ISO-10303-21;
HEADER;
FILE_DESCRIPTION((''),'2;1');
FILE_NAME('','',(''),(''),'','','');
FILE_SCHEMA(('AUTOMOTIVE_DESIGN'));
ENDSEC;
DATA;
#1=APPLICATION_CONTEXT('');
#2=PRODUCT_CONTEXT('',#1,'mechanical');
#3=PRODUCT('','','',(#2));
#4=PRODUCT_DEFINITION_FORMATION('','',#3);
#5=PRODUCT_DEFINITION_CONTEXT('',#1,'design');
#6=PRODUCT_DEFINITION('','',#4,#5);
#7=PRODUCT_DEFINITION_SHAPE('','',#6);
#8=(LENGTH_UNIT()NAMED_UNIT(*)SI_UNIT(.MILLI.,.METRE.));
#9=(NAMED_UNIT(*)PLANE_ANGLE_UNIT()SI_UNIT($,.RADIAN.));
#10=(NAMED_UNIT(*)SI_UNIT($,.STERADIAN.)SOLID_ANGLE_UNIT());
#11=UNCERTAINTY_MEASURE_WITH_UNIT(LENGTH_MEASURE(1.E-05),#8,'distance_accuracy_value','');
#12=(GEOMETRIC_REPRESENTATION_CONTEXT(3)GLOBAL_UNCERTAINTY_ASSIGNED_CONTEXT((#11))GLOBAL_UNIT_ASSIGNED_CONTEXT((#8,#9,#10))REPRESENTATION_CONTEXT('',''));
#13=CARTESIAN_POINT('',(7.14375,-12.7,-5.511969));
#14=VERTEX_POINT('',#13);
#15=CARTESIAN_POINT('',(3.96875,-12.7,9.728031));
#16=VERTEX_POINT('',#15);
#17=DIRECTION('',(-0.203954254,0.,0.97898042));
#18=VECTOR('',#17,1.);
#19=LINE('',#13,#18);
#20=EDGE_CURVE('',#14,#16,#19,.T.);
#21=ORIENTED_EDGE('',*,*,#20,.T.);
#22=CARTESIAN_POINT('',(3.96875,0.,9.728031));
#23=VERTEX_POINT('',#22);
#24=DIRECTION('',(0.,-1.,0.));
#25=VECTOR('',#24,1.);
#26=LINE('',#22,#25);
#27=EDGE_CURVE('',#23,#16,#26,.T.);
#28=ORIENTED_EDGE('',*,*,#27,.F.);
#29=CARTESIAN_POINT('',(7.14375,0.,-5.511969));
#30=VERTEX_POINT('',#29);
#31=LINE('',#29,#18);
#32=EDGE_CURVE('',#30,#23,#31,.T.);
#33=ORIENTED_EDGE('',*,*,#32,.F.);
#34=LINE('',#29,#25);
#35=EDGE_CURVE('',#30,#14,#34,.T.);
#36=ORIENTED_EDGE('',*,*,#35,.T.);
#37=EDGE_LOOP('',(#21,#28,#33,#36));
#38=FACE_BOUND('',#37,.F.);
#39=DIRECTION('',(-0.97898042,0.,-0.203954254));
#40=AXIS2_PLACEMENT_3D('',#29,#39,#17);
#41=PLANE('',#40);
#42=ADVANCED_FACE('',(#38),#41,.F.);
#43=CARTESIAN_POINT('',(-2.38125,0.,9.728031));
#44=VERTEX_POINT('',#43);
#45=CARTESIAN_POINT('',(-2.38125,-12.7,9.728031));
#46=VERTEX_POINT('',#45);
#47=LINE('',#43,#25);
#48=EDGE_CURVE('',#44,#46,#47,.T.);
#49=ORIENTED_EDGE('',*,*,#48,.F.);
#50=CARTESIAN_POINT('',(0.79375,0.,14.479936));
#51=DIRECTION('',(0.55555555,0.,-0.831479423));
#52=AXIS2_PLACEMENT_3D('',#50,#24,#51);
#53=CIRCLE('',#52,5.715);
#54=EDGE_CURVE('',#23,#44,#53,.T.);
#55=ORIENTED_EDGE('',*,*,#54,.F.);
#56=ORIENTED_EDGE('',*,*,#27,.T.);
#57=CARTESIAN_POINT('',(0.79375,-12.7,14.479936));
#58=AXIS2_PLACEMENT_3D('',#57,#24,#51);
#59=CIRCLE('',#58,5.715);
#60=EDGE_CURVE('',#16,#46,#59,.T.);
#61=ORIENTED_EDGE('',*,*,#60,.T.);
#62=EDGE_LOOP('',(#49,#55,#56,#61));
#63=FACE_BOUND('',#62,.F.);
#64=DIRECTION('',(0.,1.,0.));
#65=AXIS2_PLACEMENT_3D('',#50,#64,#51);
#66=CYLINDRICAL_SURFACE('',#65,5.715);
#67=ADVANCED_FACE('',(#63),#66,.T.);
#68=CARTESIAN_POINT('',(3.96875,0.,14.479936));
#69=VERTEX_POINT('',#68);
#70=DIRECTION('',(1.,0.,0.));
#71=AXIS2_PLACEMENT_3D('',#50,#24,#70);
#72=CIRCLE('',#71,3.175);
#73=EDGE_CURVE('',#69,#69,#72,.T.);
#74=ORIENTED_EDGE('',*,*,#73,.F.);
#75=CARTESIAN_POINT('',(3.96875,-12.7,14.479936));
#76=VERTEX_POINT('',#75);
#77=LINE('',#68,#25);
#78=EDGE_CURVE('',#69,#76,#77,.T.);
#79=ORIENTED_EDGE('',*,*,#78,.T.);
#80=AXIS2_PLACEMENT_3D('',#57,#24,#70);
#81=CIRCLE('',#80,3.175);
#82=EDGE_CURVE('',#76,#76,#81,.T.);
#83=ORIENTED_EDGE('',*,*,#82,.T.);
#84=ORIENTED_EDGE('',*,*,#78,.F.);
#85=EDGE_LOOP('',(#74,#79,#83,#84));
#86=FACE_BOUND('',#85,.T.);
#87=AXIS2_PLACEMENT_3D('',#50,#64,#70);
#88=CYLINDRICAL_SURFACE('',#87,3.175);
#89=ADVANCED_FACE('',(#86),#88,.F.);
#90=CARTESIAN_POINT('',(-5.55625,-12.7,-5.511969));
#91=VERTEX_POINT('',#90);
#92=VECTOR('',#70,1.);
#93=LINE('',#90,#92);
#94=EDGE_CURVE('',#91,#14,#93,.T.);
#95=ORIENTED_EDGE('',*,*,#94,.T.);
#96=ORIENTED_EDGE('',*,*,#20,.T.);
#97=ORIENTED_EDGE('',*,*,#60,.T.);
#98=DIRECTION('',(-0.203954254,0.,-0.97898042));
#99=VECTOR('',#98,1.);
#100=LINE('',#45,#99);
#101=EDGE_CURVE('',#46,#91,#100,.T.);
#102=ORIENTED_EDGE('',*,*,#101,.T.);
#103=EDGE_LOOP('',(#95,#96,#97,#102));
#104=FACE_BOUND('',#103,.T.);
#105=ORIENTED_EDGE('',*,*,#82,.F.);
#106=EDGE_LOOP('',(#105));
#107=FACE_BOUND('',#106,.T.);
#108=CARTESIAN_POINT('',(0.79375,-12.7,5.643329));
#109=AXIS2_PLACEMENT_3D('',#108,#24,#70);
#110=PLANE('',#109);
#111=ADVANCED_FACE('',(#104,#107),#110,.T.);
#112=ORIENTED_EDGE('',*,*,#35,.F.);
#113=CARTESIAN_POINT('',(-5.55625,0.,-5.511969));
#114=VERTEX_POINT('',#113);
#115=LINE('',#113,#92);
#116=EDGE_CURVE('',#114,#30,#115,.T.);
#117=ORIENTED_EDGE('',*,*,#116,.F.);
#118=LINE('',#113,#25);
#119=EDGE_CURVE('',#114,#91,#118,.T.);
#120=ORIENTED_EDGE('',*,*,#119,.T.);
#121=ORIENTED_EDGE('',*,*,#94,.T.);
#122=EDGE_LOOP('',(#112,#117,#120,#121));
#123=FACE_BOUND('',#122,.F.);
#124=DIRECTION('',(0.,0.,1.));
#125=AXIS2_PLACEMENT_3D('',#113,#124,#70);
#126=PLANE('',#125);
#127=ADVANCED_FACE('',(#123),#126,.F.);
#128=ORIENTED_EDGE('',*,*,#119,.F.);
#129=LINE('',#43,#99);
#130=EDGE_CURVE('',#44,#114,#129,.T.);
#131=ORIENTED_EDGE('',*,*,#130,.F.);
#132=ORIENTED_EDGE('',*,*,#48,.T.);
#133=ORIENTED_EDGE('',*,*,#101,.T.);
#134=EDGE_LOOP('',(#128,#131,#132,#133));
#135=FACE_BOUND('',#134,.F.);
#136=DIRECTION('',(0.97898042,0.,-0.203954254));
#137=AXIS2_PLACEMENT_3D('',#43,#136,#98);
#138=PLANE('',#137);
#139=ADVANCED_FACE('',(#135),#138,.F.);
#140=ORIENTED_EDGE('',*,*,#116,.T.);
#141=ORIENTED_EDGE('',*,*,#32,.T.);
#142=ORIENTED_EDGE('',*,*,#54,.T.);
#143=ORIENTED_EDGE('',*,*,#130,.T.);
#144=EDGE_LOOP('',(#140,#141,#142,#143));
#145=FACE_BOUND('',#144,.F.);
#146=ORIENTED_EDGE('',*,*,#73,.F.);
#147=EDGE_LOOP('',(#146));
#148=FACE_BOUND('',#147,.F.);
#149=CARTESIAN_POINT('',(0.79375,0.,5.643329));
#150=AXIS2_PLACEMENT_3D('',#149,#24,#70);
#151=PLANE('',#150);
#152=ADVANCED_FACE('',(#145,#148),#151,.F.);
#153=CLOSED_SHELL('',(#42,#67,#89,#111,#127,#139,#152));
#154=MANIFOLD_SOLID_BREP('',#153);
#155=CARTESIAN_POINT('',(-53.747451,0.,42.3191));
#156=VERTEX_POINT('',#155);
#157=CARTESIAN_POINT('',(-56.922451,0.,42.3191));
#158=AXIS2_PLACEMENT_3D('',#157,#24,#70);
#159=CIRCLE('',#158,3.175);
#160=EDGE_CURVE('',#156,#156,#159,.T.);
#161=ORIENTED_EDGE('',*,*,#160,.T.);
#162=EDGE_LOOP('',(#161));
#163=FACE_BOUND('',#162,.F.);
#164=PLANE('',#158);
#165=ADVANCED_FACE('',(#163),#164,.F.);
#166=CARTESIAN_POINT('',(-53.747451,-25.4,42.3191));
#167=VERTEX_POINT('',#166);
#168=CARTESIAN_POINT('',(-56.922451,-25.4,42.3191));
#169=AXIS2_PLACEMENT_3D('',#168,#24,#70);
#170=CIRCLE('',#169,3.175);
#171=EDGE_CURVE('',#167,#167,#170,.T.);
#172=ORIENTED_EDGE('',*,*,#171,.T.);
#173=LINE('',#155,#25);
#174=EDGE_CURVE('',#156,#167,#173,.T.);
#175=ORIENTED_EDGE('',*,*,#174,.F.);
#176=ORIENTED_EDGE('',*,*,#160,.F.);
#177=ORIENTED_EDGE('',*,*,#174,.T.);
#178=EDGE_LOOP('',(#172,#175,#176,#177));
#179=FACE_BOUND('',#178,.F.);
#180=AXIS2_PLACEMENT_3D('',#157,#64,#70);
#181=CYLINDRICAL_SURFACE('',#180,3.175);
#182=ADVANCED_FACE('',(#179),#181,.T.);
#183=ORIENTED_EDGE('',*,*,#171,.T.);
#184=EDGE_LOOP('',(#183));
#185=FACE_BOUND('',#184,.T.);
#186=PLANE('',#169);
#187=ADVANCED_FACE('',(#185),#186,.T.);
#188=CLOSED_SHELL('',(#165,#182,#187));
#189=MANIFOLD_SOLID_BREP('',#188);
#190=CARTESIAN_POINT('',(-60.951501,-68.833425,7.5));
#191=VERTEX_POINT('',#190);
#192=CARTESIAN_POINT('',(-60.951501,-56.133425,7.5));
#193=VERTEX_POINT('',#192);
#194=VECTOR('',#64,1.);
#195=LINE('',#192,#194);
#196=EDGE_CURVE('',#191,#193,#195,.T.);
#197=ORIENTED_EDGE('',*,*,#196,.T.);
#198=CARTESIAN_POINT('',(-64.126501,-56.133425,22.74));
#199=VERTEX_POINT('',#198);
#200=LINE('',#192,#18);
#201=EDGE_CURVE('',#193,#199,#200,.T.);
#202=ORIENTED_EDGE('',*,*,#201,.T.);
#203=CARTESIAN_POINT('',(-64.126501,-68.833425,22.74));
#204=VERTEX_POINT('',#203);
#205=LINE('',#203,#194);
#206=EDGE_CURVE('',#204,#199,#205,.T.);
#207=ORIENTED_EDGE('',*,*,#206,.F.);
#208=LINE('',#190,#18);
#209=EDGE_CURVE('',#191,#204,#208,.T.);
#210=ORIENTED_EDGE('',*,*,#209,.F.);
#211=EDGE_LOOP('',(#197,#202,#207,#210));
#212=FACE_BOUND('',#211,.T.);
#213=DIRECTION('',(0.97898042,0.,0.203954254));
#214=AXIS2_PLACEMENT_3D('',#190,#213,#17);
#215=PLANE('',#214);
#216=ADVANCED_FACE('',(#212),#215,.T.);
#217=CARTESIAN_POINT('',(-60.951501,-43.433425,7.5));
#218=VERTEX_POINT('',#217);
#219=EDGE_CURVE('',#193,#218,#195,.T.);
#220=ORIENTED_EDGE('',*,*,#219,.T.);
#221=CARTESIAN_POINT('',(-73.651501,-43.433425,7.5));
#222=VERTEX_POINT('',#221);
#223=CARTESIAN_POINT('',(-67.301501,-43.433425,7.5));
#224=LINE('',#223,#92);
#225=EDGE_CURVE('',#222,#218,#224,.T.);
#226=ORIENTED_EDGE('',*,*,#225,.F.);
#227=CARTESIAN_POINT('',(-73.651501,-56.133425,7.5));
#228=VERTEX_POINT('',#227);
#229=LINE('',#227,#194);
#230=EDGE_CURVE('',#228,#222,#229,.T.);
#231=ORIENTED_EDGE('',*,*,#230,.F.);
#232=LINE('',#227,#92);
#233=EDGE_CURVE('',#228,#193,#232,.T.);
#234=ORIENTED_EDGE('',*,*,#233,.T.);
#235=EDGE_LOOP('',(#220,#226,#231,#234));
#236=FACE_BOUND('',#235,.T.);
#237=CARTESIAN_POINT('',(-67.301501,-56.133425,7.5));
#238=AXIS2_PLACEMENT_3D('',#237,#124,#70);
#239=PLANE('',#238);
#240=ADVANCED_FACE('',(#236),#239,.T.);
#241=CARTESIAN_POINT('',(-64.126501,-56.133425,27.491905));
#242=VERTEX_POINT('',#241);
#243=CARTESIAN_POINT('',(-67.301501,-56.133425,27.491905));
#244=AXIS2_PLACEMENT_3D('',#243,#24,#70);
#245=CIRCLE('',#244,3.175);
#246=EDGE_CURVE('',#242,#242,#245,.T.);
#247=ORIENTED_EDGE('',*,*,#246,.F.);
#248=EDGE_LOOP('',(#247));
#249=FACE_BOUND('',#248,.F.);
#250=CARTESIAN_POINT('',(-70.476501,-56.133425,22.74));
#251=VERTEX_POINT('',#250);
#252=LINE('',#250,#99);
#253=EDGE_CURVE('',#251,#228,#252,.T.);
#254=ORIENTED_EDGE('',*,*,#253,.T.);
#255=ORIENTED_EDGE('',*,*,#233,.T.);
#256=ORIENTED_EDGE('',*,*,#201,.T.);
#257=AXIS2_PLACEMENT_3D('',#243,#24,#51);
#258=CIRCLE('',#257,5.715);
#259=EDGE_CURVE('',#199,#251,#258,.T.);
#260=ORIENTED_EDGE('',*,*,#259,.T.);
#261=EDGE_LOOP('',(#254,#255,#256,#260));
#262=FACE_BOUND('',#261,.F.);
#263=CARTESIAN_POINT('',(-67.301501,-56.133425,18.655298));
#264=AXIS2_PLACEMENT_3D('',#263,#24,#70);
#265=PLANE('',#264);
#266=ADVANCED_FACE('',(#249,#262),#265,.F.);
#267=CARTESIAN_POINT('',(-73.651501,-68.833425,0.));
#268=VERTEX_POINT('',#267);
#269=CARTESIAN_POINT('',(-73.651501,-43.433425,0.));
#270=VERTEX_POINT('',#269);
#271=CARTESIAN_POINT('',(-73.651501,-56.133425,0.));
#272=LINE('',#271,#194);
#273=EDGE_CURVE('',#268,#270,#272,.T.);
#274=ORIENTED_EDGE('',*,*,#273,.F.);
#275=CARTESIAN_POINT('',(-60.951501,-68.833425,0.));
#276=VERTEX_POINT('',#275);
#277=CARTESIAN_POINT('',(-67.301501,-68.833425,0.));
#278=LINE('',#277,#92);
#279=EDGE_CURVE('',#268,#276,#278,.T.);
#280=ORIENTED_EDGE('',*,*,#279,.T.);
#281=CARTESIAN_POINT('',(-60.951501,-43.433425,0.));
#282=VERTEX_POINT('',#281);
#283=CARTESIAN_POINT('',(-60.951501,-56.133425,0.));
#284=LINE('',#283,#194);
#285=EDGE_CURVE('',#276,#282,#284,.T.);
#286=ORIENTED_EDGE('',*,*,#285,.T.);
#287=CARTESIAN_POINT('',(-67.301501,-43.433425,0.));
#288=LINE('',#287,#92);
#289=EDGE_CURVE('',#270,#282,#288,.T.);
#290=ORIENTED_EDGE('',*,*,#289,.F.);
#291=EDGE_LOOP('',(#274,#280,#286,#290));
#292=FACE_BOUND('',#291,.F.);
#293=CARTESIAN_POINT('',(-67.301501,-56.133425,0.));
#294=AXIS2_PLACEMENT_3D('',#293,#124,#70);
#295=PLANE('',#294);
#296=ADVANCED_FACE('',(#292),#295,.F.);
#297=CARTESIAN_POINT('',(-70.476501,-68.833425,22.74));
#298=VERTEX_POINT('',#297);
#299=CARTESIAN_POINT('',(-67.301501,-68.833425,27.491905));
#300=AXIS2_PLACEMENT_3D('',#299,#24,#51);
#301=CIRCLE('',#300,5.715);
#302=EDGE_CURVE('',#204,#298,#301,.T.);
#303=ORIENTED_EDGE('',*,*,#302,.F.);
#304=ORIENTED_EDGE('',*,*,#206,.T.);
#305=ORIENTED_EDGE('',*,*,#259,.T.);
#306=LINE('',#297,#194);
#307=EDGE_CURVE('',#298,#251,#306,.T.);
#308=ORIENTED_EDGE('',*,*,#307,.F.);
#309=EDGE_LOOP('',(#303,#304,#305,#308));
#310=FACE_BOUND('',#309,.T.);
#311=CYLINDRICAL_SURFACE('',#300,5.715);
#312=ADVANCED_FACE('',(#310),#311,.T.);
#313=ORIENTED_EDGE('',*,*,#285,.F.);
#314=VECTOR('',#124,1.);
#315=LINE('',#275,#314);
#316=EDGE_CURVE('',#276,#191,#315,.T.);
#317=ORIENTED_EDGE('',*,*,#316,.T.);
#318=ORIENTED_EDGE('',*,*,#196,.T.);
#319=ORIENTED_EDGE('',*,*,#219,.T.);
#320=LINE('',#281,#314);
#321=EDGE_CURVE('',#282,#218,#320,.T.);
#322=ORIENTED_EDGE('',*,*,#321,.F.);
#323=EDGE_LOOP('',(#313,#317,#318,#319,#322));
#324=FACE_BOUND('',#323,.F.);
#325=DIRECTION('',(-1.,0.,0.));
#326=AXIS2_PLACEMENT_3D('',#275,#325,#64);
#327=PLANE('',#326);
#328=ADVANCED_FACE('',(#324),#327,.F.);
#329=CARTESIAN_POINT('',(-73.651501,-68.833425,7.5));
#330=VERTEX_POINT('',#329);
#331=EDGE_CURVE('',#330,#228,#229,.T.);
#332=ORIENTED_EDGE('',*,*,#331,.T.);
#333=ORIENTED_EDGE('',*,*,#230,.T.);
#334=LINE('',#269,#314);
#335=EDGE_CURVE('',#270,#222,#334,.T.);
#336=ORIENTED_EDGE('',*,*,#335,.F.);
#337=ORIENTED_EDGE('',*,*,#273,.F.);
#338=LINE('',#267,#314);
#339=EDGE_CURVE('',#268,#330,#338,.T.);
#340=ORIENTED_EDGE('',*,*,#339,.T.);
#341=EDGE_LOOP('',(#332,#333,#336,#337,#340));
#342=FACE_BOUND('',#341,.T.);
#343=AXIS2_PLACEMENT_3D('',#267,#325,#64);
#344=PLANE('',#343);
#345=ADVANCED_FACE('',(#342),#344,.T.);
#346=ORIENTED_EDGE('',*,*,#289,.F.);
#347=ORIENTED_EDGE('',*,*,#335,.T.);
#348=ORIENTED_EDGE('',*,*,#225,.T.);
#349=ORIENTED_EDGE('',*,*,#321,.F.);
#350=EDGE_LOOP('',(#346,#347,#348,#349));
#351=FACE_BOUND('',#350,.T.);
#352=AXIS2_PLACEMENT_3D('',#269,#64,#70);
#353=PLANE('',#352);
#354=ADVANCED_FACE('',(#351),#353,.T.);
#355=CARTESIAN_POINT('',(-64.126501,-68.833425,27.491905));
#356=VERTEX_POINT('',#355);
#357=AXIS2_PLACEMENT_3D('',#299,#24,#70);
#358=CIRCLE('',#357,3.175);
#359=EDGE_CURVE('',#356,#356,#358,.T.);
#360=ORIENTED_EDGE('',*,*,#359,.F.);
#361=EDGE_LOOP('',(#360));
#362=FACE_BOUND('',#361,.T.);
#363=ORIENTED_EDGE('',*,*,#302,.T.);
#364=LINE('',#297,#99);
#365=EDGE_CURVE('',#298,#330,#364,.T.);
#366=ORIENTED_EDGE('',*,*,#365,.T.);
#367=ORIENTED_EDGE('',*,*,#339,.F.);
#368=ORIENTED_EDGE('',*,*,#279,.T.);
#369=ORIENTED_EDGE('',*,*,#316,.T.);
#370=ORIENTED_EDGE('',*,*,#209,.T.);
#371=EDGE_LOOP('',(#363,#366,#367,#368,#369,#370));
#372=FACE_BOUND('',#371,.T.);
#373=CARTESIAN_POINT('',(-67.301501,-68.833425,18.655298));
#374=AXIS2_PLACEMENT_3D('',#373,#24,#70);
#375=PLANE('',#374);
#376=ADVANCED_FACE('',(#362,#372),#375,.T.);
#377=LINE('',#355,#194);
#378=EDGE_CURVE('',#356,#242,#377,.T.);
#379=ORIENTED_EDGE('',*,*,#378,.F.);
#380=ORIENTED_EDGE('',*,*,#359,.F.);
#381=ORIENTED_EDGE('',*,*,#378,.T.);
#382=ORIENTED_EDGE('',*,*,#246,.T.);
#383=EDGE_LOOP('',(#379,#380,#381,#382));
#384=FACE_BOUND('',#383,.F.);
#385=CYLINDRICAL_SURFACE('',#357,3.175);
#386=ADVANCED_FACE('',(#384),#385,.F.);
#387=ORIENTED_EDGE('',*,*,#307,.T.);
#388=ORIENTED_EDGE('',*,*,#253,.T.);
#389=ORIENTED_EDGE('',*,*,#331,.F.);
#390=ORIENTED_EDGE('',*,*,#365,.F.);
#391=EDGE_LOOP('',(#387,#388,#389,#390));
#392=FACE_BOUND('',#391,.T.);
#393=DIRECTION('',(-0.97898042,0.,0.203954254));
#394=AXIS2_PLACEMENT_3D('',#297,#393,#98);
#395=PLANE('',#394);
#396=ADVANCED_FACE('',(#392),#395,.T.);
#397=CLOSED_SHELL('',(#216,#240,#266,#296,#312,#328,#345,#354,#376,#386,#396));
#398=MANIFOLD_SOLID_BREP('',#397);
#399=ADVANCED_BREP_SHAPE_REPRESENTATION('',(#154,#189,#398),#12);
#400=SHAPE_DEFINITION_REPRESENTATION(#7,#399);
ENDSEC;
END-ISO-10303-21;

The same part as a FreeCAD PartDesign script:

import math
import FreeCAD as App
import Part
import Sketcher

V = App.Vector
Q = App.Units.Quantity


def add_polygon(sketch, points):
    """Adds a closed chain of lines whose ends are joined by coincident constraints."""
    first, n = sketch.GeometryCount, len(points)
    for a, b in zip(points, points[1:] + points[:1]):
        sketch.addGeometry(Part.LineSegment(App.Vector(*a, 0), App.Vector(*b, 0)), False)
    for i in range(n):
        sketch.addConstraint(Sketcher.Constraint("Coincident", first + i, 2, first + (i + 1) % n, 1))

doc = App.newDocument("Part")
body = doc.addObject("PartDesign::Body", "Body")

sketch1 = body.newObject("Sketcher::SketchObject", "Sketch")
sketch1.AttachmentSupport = (doc.getObject("XY_Plane"), [""])
sketch1.MapMode = "FlatFace"
add_polygon(sketch1, [(-73.651501, -43.433425), (-73.651501, -68.833425), (-60.951501, -68.833425), (-60.951501, -43.433425)])
sketch1.addConstraint([
    Sketcher.Constraint("Vertical", 0),
    Sketcher.Constraint("Horizontal", 1),
    Sketcher.Constraint("Vertical", 2),
    Sketcher.Constraint("Horizontal", 3),
    Sketcher.Constraint("DistanceY", 0, 2, 0, 1, Q("1 in")),
    Sketcher.Constraint("DistanceX", 1, 1, 1, 2, Q("0.5 in")),
    Sketcher.Constraint("DistanceX", 0, 2, -1, 1, Q("73.651501 mm")),
    Sketcher.Constraint("DistanceY", 0, 2, -1, 1, Q("68.833425 mm")),
])
pad1 = body.newObject("PartDesign::Pad", "Pad")
pad1.Profile = sketch1
pad1.Length = 7.5

sketch2 = body.newObject("Sketcher::SketchObject", "Sketch001")
sketch2.AttachmentSupport = (doc.getObject("XZ_Plane"), [""])
sketch2.MapMode = "FlatFace"
sketch2.AttachmentOffset = App.Placement(V(0, 0, 68.833425), App.Rotation())
sketch2.addGeometry([
    Part.LineSegment(V(-70.476501, 22.74, 0), V(-73.651501, 7.5, 0)),
    Part.LineSegment(V(-73.651501, 7.5, 0), V(-60.951501, 7.5, 0)),
    Part.LineSegment(V(-60.951501, 7.5, 0), V(-64.126501, 22.74, 0)),
    Part.ArcOfCircle(Part.Circle(V(-67.301501, 27.491905, 0), V(0, 0, 1), 5.715), math.radians(-56.251012), math.radians(236.251012)),
], False)
sketch2.addConstraint([
    Sketcher.Constraint("Coincident", 0, 2, 1, 1),
    Sketcher.Constraint("Coincident", 1, 2, 2, 1),
    Sketcher.Constraint("Coincident", 2, 2, 3, 1),
    Sketcher.Constraint("Coincident", 3, 2, 0, 1),
    Sketcher.Constraint("Horizontal", 1),
    Sketcher.Constraint("Horizontal", 2, 2, 3, 2),
    Sketcher.Constraint("Equal", 0, 2),
    Sketcher.Constraint("DistanceX", 1, 1, 1, 2, Q("0.5 in")),
    Sketcher.Constraint("Radius", 3, Q("0.225 in")),
    Sketcher.Constraint("DistanceY", 1, 2, 2, 2, Q("0.6 in")),
    Sketcher.Constraint("DistanceX", 3, 2, 2, 2, Q("0.25 in")),
    Sketcher.Constraint("DistanceX", 3, 3, -1, 1, Q("67.301501 mm")),
    Sketcher.Constraint("DistanceY", -1, 1, 0, 2, Q("7.5 mm")),
])
pad2 = body.newObject("PartDesign::Pad", "Pad001")
pad2.Profile = sketch2
pad2.Length = Q("0.5 in")
pad2.Reversed = True

sketch3 = body.newObject("Sketcher::SketchObject", "Sketch002")
sketch3.AttachmentSupport = (doc.getObject("XZ_Plane"), [""])
sketch3.MapMode = "FlatFace"
sketch3.AttachmentOffset = App.Placement(V(0, 0, 68.833425), App.Rotation())
sketch3.addGeometry(Part.Circle(V(-67.301501, 27.491905, 0), V(0, 0, 1), 3.175), False)
sketch3.addConstraint([
    Sketcher.Constraint("Diameter", 0, Q("0.25 in")),
    Sketcher.Constraint("DistanceX", 0, 3, -1, 1, Q("67.301501 mm")),
    Sketcher.Constraint("DistanceY", -1, 1, 0, 3, Q("27.491905 mm")),
])
pocket1 = body.newObject("PartDesign::Pocket", "Pocket")
pocket1.Profile = sketch3
pocket1.Length = Q("1 in")
body2 = doc.addObject("PartDesign::Body", "Body001")

sketch4 = body2.newObject("Sketcher::SketchObject", "Sketch003")
sketch4.AttachmentSupport = (doc.getObject("XZ_Plane001"), [""])
sketch4.MapMode = "FlatFace"
sketch4.addGeometry([
    Part.LineSegment(V(-2.38125, 9.728031, 0), V(-5.55625, -5.511969, 0)),
    Part.LineSegment(V(-5.55625, -5.511969, 0), V(7.14375, -5.511969, 0)),
    Part.LineSegment(V(7.14375, -5.511969, 0), V(3.96875, 9.728031, 0)),
    Part.ArcOfCircle(Part.Circle(V(0.79375, 14.479936, 0), V(0, 0, 1), 5.715), math.radians(-56.251012), math.radians(236.251012)),
    Part.Circle(V(0.79375, 14.479936, 0), V(0, 0, 1), 3.175),
], False)
sketch4.addConstraint([
    Sketcher.Constraint("Coincident", 0, 2, 1, 1),
    Sketcher.Constraint("Coincident", 1, 2, 2, 1),
    Sketcher.Constraint("Coincident", 2, 2, 3, 1),
    Sketcher.Constraint("Coincident", 3, 2, 0, 1),
    Sketcher.Constraint("Horizontal", 1),
    Sketcher.Constraint("Coincident", 4, 3, 3, 3),
    Sketcher.Constraint("Horizontal", 2, 2, 3, 2),
    Sketcher.Constraint("Equal", 0, 2),
    Sketcher.Constraint("Diameter", 4, Q("0.25 in")),
    Sketcher.Constraint("DistanceX", 1, 1, 1, 2, Q("0.5 in")),
    Sketcher.Constraint("Radius", 3, Q("0.225 in")),
    Sketcher.Constraint("DistanceY", 1, 2, 2, 2, Q("0.6 in")),
    Sketcher.Constraint("DistanceX", 3, 2, 2, 2, Q("0.25 in")),
    Sketcher.Constraint("DistanceX", -1, 1, 3, 3, Q("0.03125 in")),
    Sketcher.Constraint("DistanceY", 0, 2, -1, 1, Q("5.511969 mm")),
])
pad3 = body2.newObject("PartDesign::Pad", "Pad002")
pad3.Profile = sketch4
pad3.Length = Q("0.5 in")
body3 = doc.addObject("PartDesign::Body", "Body002")

sketch5 = body3.newObject("Sketcher::SketchObject", "Sketch004")
sketch5.AttachmentSupport = (doc.getObject("XZ_Plane002"), [""])
sketch5.MapMode = "FlatFace"
sketch5.addGeometry(Part.Circle(V(-56.922451, 42.3191, 0), V(0, 0, 1), 3.175), False)
sketch5.addConstraint([
    Sketcher.Constraint("Diameter", 0, Q("0.25 in")),
    Sketcher.Constraint("DistanceY", -1, 1, 0, 3, Q("42.3191 mm")),
    Sketcher.Constraint("DistanceX", 0, 3, -1, 1, Q("56.922451 mm")),
])
pad4 = body3.newObject("PartDesign::Pad", "Pad003")
pad4.Profile = sketch5
pad4.Length = Q("1 in")

doc.recompute()
